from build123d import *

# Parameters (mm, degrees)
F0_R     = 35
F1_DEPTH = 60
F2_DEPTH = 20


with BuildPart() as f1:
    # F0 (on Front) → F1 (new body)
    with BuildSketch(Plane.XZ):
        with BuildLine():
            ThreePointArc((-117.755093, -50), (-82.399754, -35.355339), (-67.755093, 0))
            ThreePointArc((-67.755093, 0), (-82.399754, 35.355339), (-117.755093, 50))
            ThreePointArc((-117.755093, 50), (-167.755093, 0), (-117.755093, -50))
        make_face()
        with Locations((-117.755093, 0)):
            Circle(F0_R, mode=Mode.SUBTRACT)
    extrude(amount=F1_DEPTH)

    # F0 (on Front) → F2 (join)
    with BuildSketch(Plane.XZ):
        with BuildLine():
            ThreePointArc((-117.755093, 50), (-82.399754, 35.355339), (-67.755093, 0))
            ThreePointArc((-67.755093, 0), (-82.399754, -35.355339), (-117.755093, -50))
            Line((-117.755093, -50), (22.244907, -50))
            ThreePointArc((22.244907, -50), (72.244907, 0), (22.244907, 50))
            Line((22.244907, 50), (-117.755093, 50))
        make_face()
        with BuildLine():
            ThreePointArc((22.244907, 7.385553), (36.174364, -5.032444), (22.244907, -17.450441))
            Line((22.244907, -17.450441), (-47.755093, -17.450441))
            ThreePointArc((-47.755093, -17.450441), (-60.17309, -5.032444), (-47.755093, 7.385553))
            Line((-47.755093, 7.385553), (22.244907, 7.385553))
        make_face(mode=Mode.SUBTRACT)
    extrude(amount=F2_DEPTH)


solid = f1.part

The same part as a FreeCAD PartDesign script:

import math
import FreeCAD as App
import Part
import Sketcher

V = App.Vector
Q = App.Units.Quantity

doc = App.newDocument("Part")
body = doc.addObject("PartDesign::Body", "Body")

# Sketch on XZ plane
sketch1 = body.newObject("Sketcher::SketchObject", "Sketch")
sketch1.AttachmentSupport = (doc.getObject("XZ_Plane"), [""])
sketch1.MapMode = "FlatFace"
sketch1.addGeometry(Part.ArcOfCircle(Part.Circle(V(-118, 0, 0), V(0, 0, 1), 50), math.radians(-90), math.radians(0)), False)
sketch1.addGeometry(Part.ArcOfCircle(Part.Circle(V(-118, 0, 0), V(0, 0, 1), 50), math.radians(0), math.radians(90)), False)
sketch1.addGeometry(Part.ArcOfCircle(Part.Circle(V(-118, 0, 0), V(0, 0, 1), 50), math.radians(90), math.radians(270)), False)
sketch1.addGeometry(Part.Circle(V(-118, 0, 0), V(0, 0, 1), 35), False)
sketch1.addConstraint(Sketcher.Constraint("Tangent", 0, 2, 1, 1))
sketch1.addConstraint(Sketcher.Constraint("Tangent", 1, 2, 2, 1))
sketch1.addConstraint(Sketcher.Constraint("Tangent", 2, 2, 0, 1))
sketch1.addConstraint(Sketcher.Constraint("Coincident", 3, 3, 0, 3))
sketch1.addConstraint(Sketcher.Constraint("Symmetric", 1, 2, 2, 2, -1))
sketch1.addConstraint(Sketcher.Constraint("PointOnObject", 0, 2, -1))
sketch1.addConstraint(Sketcher.Constraint("Vertical", 3, 3, 1, 2))
sketch1.addConstraint(Sketcher.Constraint("Diameter", 3, Q("70 mm")))
sketch1.addConstraint(Sketcher.Constraint("Radius", 0, Q("50 mm")))
sketch1.addConstraint(Sketcher.Constraint("DistanceX", 0, 3, -1, 1, Q("117.755093 mm")))
pad1 = body.newObject("PartDesign::Pad", "Pad")
pad1.Profile = sketch1
pad1.Length = 60

# Sketch on XZ plane
sketch2 = body.newObject("Sketcher::SketchObject", "Sketch001")
sketch2.AttachmentSupport = (doc.getObject("XZ_Plane"), [""])
sketch2.MapMode = "FlatFace"
sketch2.addGeometry(Part.ArcOfCircle(Part.Circle(V(-118, 0, 0), V(0, 0, 1), 50), math.radians(0), math.radians(90)), False)
sketch2.addGeometry(Part.ArcOfCircle(Part.Circle(V(-118, 0, 0), V(0, 0, 1), 50), math.radians(-90), math.radians(0)), False)
sketch2.addGeometry(Part.LineSegment(V(-118, -50, 0), V(22, -50, 0)), False)
sketch2.addGeometry(Part.ArcOfCircle(Part.Circle(V(22, 0, 0), V(0, 0, 1), 50), math.radians(-90), math.radians(90)), False)
sketch2.addGeometry(Part.LineSegment(V(22, 50, 0), V(-118, 50, 0)), False)
sketch2.addGeometry(Part.LineSegment(V(-48, 7, 0), V(22, 7, 0)), False)
sketch2.addGeometry(Part.ArcOfCircle(Part.Circle(V(24, -5, 0), V(0, 0, 1), 12), math.radians(-97), math.radians(97)), False)
sketch2.addGeometry(Part.LineSegment(V(22, -17, 0), V(-48, -17, 0)), False)
sketch2.addGeometry(Part.ArcOfCircle(Part.Circle(V(-48, -5, 0), V(0, 0, 1), 12), math.radians(90), math.radians(270)), False)
sketch2.addConstraint(Sketcher.Constraint("Tangent", 0, 1, 1, 2))
sketch2.addConstraint(Sketcher.Constraint("Tangent", 1, 1, 2, 1))
sketch2.addConstraint(Sketcher.Constraint("Tangent", 2, 2, 3, 1))
sketch2.addConstraint(Sketcher.Constraint("Tangent", 3, 2, 4, 1))
sketch2.addConstraint(Sketcher.Constraint("Tangent", 4, 2, 0, 2))
sketch2.addConstraint(Sketcher.Constraint("Coincident", 5, 2, 6, 2))
sketch2.addConstraint(Sketcher.Constraint("Coincident", 6, 1, 7, 1))
sketch2.addConstraint(Sketcher.Constraint("Tangent", 7, 2, 8, 2))
sketch2.addConstraint(Sketcher.Constraint("Tangent", 8, 1, 5, 1))
sketch2.addConstraint(Sketcher.Constraint("Horizontal", 2))
sketch2.addConstraint(Sketcher.Constraint("Horizontal", 4))
sketch2.addConstraint(Sketcher.Constraint("Horizontal", 5))
sketch2.addConstraint(Sketcher.Constraint("Horizontal", 7))
sketch2.addConstraint(Sketcher.Constraint("Equal", 0, 1))
sketch2.addConstraint(Sketcher.Constraint("PointOnObject", 0, 3, -1))
sketch2.addConstraint(Sketcher.Constraint("PointOnObject", 0, 1, -1))
sketch2.addConstraint(Sketcher.Constraint("Horizontal", 6, 3, 8, 3))
sketch2.addConstraint(Sketcher.Constraint("Vertical", 3, 2, 5, 2))
sketch2.addConstraint(Sketcher.Constraint("Radius", 0, Q("50 mm")))
sketch2.addConstraint(Sketcher.Constraint("Radius", 6, Q("12.5 mm")))
sketch2.addConstraint(Sketcher.Constraint("DistanceX", 2, 1, 2, 2, Q("140 mm")))
sketch2.addConstraint(Sketcher.Constraint("DistanceX", 5, 1, 5, 2, Q("70 mm")))
sketch2.addConstraint(Sketcher.Constraint("Radius", 8, Q("12.417997 mm")))
sketch2.addConstraint(Sketcher.Constraint("DistanceY", 6, 1, -1, 1, Q("17.450441 mm")))
sketch2.addConstraint(Sketcher.Constraint("DistanceX", 0, 3, -1, 1, Q("117.755093 mm")))
pad2 = body.newObject("PartDesign::Pad", "Pad001")
pad2.Profile = sketch2
pad2.Length = 20

doc.recompute()
